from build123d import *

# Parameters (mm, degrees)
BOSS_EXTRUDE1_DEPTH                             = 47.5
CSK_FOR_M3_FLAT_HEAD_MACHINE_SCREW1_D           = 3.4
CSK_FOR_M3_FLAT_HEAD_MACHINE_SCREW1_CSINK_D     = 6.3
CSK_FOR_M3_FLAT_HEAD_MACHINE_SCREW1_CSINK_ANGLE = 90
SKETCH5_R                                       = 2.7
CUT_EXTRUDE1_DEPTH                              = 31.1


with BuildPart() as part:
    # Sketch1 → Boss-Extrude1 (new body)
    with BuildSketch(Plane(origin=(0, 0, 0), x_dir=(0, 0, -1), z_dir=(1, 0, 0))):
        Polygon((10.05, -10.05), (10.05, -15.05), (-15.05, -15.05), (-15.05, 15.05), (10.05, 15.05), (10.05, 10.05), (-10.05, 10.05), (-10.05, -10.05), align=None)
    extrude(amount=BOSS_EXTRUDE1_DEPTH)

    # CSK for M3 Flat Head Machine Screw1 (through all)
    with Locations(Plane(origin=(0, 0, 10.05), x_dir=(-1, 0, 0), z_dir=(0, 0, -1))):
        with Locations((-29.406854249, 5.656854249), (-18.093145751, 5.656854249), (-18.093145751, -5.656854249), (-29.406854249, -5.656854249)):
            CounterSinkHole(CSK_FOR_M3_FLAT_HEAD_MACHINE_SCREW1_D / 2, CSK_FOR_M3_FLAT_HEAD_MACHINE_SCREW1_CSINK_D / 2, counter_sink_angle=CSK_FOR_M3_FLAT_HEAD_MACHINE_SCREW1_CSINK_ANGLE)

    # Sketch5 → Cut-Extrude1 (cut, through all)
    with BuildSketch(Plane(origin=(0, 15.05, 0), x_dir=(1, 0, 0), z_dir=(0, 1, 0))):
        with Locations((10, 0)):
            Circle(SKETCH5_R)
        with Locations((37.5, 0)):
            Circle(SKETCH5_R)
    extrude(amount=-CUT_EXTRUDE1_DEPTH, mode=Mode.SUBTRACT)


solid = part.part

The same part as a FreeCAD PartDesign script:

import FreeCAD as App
import Part
import Sketcher
from FreeCAD import Vector

doc = App.newDocument("Part")
body = doc.addObject("PartDesign::Body", "Body")

sketch1 = doc.addObject("Sketcher::SketchObject", "Sketch")
body.addObject(sketch1)
sketch1.AttachmentSupport = (doc.YZ_Plane, [""])
sketch1.MapMode = "FlatFace"
sketch1.addGeometry(Part.LineSegment(Vector(-15, -10, 0), Vector(-10, -10, 0)), False)
sketch1.addGeometry(Part.LineSegment(Vector(-10, -10, 0), Vector(-10, 10, 0)), False)
sketch1.addGeometry(Part.LineSegment(Vector(-10, 10, 0), Vector(10, 10, 0)), False)
sketch1.addGeometry(Part.LineSegment(Vector(10, 10, 0), Vector(10, -10, 0)), False)
sketch1.addGeometry(Part.LineSegment(Vector(10, -10, 0), Vector(15, -10, 0)), False)
sketch1.addGeometry(Part.LineSegment(Vector(15, -10, 0), Vector(15, 15, 0)), False)
sketch1.addGeometry(Part.LineSegment(Vector(15, 15, 0), Vector(-15, 15, 0)), False)
sketch1.addGeometry(Part.LineSegment(Vector(-15, 15, 0), Vector(-15, -10, 0)), False)
sketch1.addConstraint(Sketcher.Constraint("Coincident", 0, 2, 1, 1))
sketch1.addConstraint(Sketcher.Constraint("Coincident", 1, 2, 2, 1))
sketch1.addConstraint(Sketcher.Constraint("Coincident", 2, 2, 3, 1))
sketch1.addConstraint(Sketcher.Constraint("Coincident", 3, 2, 4, 1))
sketch1.addConstraint(Sketcher.Constraint("Coincident", 4, 2, 5, 1))
sketch1.addConstraint(Sketcher.Constraint("Coincident", 5, 2, 6, 1))
sketch1.addConstraint(Sketcher.Constraint("Coincident", 6, 2, 7, 1))
sketch1.addConstraint(Sketcher.Constraint("Coincident", 7, 2, 0, 1))
sketch1.addConstraint(Sketcher.Constraint("Horizontal", 0))
sketch1.addConstraint(Sketcher.Constraint("Vertical", 1))
sketch1.addConstraint(Sketcher.Constraint("Horizontal", 2))
sketch1.addConstraint(Sketcher.Constraint("Vertical", 3))
sketch1.addConstraint(Sketcher.Constraint("Horizontal", 4))
sketch1.addConstraint(Sketcher.Constraint("Vertical", 5))
sketch1.addConstraint(Sketcher.Constraint("Horizontal", 6))
sketch1.addConstraint(Sketcher.Constraint("Vertical", 7))
sketch1.addConstraint(Sketcher.Constraint("Symmetric", 0, 2, 2, 2, -1, 1))
sketch1.addConstraint(Sketcher.Constraint("Symmetric", 4, 2, 7, 2, -2))
sketch1.addConstraint(Sketcher.Constraint("Equal", 2, 1))
sketch1.addConstraint(Sketcher.Constraint("DistanceX", 0, 1, 0, 2, 5.0))
sketch1.addConstraint(Sketcher.Constraint("DistanceX", 2, 1, 2, 2, 20.1))
sketch1.addConstraint(Sketcher.Constraint("DistanceY", 5, 1, 5, 2, 25.1))
pad1 = doc.addObject("PartDesign::Pad", "Pad")
body.addObject(pad1)
pad1.Profile = sketch1
pad1.Length = 47.5

sketch2 = doc.addObject("Sketcher::SketchObject", "Sketch001")
body.addObject(sketch2)
sketch2.AttachmentSupport = (doc.XY_Plane, [""])
sketch2.MapMode = "FlatFace"
sketch2.AttachmentOffset = App.Placement(Vector(0, 0, 10.05), App.Rotation())
sketch2.addGeometry(Part.Circle(Vector(29.4, 5.7, 0), Vector(0, 0, 1), 1.7), False)
sketch2.addGeometry(Part.Circle(Vector(18.1, 5.7, 0), Vector(0, 0, 1), 1.7), False)
sketch2.addGeometry(Part.Circle(Vector(18.1, -5.7, 0), Vector(0, 0, 1), 1.7), False)
sketch2.addGeometry(Part.Circle(Vector(29.4, -5.7, 0), Vector(0, 0, 1), 1.7), False)
sketch2.addConstraint(Sketcher.Constraint("Equal", 0, 1))
sketch2.addConstraint(Sketcher.Constraint("Equal", 1, 2))
sketch2.addConstraint(Sketcher.Constraint("Equal", 2, 3))
sketch2.addConstraint(Sketcher.Constraint("Symmetric", 1, 3, 2, 3, -1))
sketch2.addConstraint(Sketcher.Constraint("Symmetric", 0, 3, 3, 3, -1))
sketch2.addConstraint(Sketcher.Constraint("Horizontal", 0, 3, 1, 3))
sketch2.addConstraint(Sketcher.Constraint("Diameter", 0, 3.4))
sketch2.addConstraint(Sketcher.Constraint("DistanceX", 1, 3, 0, 3, 11.313708))
sketch2.addConstraint(Sketcher.Constraint("DistanceY", 2, 3, 1, 3, 11.313708))
sketch2.addConstraint(Sketcher.Constraint("DistanceX", -1, 1, 0, 3, 29.406854))
doc.recompute()
hole = doc.addObject("PartDesign::Hole", "Hole")
body.addObject(hole)
hole.Profile = sketch2
hole.ThreadType = "None"
hole.Diameter = 3.4
hole.DepthType = "ThroughAll"
hole.HoleCutType = "Countersink"
hole.HoleCutDiameter = 6.3
hole.HoleCutCountersinkAngle = 90
hole.Reversed = True

sketch3 = doc.addObject("Sketcher::SketchObject", "Sketch002")
body.addObject(sketch3)
sketch3.AttachmentSupport = (doc.XZ_Plane, [""])
sketch3.MapMode = "FlatFace"
sketch3.AttachmentOffset = App.Placement(Vector(0, 0, -15.05), App.Rotation())
sketch3.addGeometry(Part.Circle(Vector(10, 0, 0), Vector(0, 0, 1), 2.7), False)
sketch3.addGeometry(Part.Circle(Vector(37.5, 0, 0), Vector(0, 0, 1), 2.7), False)
sketch3.addConstraint(Sketcher.Constraint("Equal", 0, 1))
sketch3.addConstraint(Sketcher.Constraint("PointOnObject", 0, 3, -1))
sketch3.addConstraint(Sketcher.Constraint("PointOnObject", 1, 3, -1))
sketch3.addConstraint(Sketcher.Constraint("Diameter", 0, 5.4))
sketch3.addConstraint(Sketcher.Constraint("DistanceX", -1, 1, 0, 3, 10.0))
sketch3.addConstraint(Sketcher.Constraint("DistanceX", -1, 1, 1, 3, 37.5))
pocket1 = doc.addObject("PartDesign::Pocket", "Pocket")
body.addObject(pocket1)
pocket1.Profile = sketch3
pocket1.Type = "ThroughAll"
pocket1.Reversed = True

doc.recompute()
